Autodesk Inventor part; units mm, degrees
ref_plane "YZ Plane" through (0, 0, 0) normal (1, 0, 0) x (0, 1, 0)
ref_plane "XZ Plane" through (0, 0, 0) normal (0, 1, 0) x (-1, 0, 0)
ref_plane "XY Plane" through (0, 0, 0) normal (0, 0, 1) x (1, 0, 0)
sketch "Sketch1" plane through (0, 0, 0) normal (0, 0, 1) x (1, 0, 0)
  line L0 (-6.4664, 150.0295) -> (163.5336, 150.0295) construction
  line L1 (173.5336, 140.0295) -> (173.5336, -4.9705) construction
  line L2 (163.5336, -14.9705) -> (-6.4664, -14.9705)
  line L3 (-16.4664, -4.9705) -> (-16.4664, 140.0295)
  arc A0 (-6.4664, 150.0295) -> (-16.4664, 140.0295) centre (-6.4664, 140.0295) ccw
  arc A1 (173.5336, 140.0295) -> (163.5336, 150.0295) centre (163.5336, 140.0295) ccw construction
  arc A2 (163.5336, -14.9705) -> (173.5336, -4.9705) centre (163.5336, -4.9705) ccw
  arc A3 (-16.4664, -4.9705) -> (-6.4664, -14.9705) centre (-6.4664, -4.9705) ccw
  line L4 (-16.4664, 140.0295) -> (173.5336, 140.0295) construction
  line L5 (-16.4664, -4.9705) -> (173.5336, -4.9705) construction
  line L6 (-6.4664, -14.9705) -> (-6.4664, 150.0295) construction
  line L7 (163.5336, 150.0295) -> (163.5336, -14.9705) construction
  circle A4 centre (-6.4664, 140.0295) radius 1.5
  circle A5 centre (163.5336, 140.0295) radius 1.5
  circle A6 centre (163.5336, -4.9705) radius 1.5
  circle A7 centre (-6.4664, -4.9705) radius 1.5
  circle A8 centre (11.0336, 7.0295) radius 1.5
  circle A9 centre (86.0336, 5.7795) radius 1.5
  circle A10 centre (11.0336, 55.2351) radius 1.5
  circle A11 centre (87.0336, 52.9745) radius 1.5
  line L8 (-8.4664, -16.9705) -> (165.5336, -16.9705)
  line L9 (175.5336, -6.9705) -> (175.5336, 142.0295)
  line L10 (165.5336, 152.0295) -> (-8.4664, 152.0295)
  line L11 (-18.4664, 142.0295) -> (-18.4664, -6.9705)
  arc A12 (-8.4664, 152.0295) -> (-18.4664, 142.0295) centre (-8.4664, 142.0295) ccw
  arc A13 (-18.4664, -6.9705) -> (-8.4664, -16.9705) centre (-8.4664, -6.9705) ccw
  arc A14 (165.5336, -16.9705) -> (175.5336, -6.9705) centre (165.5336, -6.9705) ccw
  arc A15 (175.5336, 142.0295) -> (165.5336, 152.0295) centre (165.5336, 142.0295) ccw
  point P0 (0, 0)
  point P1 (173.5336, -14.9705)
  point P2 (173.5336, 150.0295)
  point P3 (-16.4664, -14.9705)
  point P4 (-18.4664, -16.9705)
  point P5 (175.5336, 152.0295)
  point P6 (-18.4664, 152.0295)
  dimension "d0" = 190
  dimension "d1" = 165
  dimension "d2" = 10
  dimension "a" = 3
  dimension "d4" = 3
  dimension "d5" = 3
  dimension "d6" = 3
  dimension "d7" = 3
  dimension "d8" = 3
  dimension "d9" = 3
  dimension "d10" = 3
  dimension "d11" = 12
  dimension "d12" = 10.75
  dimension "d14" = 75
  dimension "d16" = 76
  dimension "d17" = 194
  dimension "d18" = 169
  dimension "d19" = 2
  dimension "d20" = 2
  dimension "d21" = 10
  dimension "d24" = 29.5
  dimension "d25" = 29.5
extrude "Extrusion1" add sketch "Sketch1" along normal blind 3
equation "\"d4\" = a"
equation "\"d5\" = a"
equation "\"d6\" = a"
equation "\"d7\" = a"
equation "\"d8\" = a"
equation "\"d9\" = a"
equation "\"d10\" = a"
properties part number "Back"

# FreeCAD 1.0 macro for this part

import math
import FreeCAD as App
import Part
import Sketcher
from FreeCAD import Vector
Q = App.Units.Quantity

doc = App.newDocument("Part")
body = doc.addObject("PartDesign::Body", "Body")

# Sketch on XY plane
sketch1 = body.newObject("Sketcher::SketchObject", "Sketch")
sketch1.AttachmentSupport = (doc.getObject("XY_Plane"), [""])
sketch1.MapMode = "FlatFace"
sketch1.addGeometry([
    Part.ArcOfCircle(Part.Circle(Vector(-8.5, -7, 0), Vector(0, 0, 1), 10), math.radians(180), math.radians(270)),  # 0
    Part.LineSegment(Vector(-8.5, -17, 0), Vector(165.5, -17, 0)),  # 1
    Part.ArcOfCircle(Part.Circle(Vector(165.5, -7, 0), Vector(0, 0, 1), 10), math.radians(-90), math.radians(0)),  # 2
    Part.LineSegment(Vector(175.5, -7, 0), Vector(175.5, 142, 0)),  # 3
    Part.ArcOfCircle(Part.Circle(Vector(165.5, 142, 0), Vector(0, 0, 1), 10), math.radians(0), math.radians(90)),  # 4
    Part.LineSegment(Vector(165.5, 152, 0), Vector(-8.5, 152, 0)),  # 5
    Part.ArcOfCircle(Part.Circle(Vector(-8.5, 142, 0), Vector(0, 0, 1), 10), math.radians(90), math.radians(180)),  # 6
    Part.LineSegment(Vector(-18.5, 142, 0), Vector(-18.5, -7, 0)),  # 7
    Part.Circle(Vector(-6.5, -5, 0), Vector(0, 0, 1), 1.5),  # 8
    Part.Circle(Vector(11, 7, 0), Vector(0, 0, 1), 1.5),  # 9
    Part.Circle(Vector(11, 55.2, 0), Vector(0, 0, 1), 1.5),  # 10
    Part.Circle(Vector(86, 5.8, 0), Vector(0, 0, 1), 1.5),  # 11
    Part.Circle(Vector(163.5, -5, 0), Vector(0, 0, 1), 1.5),  # 12
    Part.Circle(Vector(87, 53, 0), Vector(0, 0, 1), 1.5),  # 13
    Part.Circle(Vector(-6.5, 140, 0), Vector(0, 0, 1), 1.5),  # 14
    Part.Circle(Vector(163.5, 140, 0), Vector(0, 0, 1), 1.5),  # 15
], False)
sketch1.addConstraint([
    Sketcher.Constraint("Tangent", 0, 2, 1, 1),
    Sketcher.Constraint("Tangent", 1, 2, 2, 1),
    Sketcher.Constraint("Tangent", 2, 2, 3, 1),
    Sketcher.Constraint("Tangent", 3, 2, 4, 1),
    Sketcher.Constraint("Tangent", 4, 2, 5, 1),
    Sketcher.Constraint("Tangent", 5, 2, 6, 1),
    Sketcher.Constraint("Tangent", 6, 2, 7, 1),
    Sketcher.Constraint("Tangent", 7, 2, 0, 1),
    Sketcher.Constraint("Horizontal", 1),
    Sketcher.Constraint("Vertical", 3),
    Sketcher.Constraint("Horizontal", 5),
    Sketcher.Constraint("Vertical", 7),
    Sketcher.Constraint("Equal", 0, 2),
    Sketcher.Constraint("Equal", 2, 4),
    Sketcher.Constraint("Equal", 4, 6),
    Sketcher.Constraint("Equal", 8, 9),
    Sketcher.Constraint("Equal", 9, 10),
    Sketcher.Constraint("Equal", 10, 11),
    Sketcher.Constraint("Equal", 11, 12),
    Sketcher.Constraint("Equal", 12, 13),
    Sketcher.Constraint("Equal", 13, 14),
    Sketcher.Constraint("Equal", 14, 15),
    Sketcher.Constraint("Horizontal", 8, 3, 12, 3),
    Sketcher.Constraint("Horizontal", 14, 3, 15, 3),
    Sketcher.Constraint("Vertical", 9, 3, 10, 3),
    Sketcher.Constraint("Vertical", 8, 3, 14, 3),
    Sketcher.Constraint("Vertical", 12, 3, 15, 3),
    Sketcher.Constraint("Diameter", 8, Q("3 mm")),
    Sketcher.Constraint("Radius", 0, Q("10 mm")),
    Sketcher.Constraint("DistanceX", 0, 3, 8, 3, Q("2 mm")),
    Sketcher.Constraint("DistanceY", 0, 3, 8, 3, Q("2 mm")),
    Sketcher.Constraint("DistanceY", 8, 3, 9, 3, Q("12 mm")),
    Sketcher.Constraint("DistanceX", 9, 3, 11, 3, Q("75 mm")),
    Sketcher.Constraint("DistanceX", 12, 3, 2, 3, Q("2 mm")),
    Sketcher.Constraint("DistanceX", 10, 3, 13, 3, Q("76 mm")),
    Sketcher.Constraint("DistanceY", 14, 3, 6, 3, Q("2 mm")),
    Sketcher.Constraint("DistanceX", 6, 2, 10, 3, Q("29.5 mm")),
    Sketcher.Constraint("DistanceX", 1, 1, 1, 2, Q("174 mm")),
    Sketcher.Constraint("DistanceY", 3, 1, 3, 2, Q("149 mm")),
    Sketcher.Constraint("DistanceY", 8, 3, 11, 3, Q("10.75 mm")),
    Sketcher.Constraint("DistanceY", -1, 1, 10, 3, Q("55.235 mm")),
    Sketcher.Constraint("DistanceY", 11, 3, 13, 3, Q("47.195 mm")),
    Sketcher.Constraint("DistanceX", 0, 3, -1, 1, Q("8.4664 mm")),
    Sketcher.Constraint("DistanceY", 0, 3, -1, 1, Q("6.9705 mm")),
])
pad1 = body.newObject("PartDesign::Pad", "Pad")
pad1.Profile = sketch1
pad1.Length = 3

doc.recompute()
